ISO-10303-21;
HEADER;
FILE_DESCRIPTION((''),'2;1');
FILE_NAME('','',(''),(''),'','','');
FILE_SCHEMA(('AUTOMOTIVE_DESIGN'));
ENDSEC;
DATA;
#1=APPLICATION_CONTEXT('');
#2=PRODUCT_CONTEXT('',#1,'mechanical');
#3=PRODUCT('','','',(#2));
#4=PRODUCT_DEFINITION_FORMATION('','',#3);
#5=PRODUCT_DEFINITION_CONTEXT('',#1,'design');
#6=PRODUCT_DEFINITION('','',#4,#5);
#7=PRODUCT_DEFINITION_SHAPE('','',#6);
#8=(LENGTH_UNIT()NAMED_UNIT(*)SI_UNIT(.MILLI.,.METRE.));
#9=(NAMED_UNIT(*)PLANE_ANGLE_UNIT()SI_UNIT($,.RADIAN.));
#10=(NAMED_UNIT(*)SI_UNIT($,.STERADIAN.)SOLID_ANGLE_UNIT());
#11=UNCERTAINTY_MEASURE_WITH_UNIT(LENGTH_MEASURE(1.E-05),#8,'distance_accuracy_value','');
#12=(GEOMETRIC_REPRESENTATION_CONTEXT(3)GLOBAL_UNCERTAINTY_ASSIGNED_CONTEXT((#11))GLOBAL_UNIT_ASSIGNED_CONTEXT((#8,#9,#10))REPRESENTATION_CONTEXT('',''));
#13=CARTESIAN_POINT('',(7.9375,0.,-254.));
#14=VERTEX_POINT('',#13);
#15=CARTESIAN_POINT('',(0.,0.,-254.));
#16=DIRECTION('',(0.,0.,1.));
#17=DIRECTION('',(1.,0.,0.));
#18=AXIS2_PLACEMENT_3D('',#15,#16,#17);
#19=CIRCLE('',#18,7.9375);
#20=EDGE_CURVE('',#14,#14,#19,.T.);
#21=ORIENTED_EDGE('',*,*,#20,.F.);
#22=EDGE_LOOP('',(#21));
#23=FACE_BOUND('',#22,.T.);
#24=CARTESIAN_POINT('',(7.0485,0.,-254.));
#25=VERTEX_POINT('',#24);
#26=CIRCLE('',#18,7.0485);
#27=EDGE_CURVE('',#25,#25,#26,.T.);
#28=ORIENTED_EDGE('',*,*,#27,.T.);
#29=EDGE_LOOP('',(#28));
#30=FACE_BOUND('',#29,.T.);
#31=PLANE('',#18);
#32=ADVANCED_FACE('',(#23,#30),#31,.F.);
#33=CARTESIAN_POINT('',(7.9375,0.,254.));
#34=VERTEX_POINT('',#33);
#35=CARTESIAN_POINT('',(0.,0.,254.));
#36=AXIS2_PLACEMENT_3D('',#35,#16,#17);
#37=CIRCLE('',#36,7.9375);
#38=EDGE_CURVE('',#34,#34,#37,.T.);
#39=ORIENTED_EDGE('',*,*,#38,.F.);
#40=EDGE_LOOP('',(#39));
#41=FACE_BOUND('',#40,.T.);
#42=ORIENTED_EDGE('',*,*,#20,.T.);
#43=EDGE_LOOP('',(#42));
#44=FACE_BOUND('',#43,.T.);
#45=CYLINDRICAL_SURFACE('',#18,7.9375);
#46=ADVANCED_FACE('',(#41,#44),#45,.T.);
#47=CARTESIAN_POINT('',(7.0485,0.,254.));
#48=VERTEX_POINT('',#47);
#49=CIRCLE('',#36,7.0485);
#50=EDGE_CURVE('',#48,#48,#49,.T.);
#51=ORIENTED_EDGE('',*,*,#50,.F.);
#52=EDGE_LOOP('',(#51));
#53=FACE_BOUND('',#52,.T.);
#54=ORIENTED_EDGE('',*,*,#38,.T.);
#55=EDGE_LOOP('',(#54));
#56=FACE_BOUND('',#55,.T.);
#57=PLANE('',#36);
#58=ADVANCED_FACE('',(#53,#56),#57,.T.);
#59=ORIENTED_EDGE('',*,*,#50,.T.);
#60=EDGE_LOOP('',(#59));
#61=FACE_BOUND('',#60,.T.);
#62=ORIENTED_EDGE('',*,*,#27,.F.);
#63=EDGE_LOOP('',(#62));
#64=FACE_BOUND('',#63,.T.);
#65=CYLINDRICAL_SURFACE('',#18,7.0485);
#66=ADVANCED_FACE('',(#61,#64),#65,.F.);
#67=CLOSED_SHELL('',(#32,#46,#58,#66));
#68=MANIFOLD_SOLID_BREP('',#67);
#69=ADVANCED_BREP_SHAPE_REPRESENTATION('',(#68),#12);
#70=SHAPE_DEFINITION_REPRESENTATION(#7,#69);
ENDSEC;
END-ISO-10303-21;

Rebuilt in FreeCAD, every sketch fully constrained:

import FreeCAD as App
import Part
import Sketcher

V = App.Vector
Q = App.Units.Quantity

doc = App.newDocument("Part")
body = doc.addObject("PartDesign::Body", "Body")

# Sketch on XY plane
sketch1 = body.newObject("Sketcher::SketchObject", "Sketch")
sketch1.AttachmentSupport = (doc.getObject("XY_Plane"), [""])
sketch1.MapMode = "FlatFace"
sketch1.addGeometry(Part.Circle(V(0, 0, 0), V(0, 0, 1), 8), False)
sketch1.addGeometry(Part.Circle(V(0, 0, 0), V(0, 0, 1), 7), False)
sketch1.addConstraint(Sketcher.Constraint("Coincident", 0, 3, -1, 1))
sketch1.addConstraint(Sketcher.Constraint("Coincident", 1, 3, -1, 1))
sketch1.addConstraint(Sketcher.Constraint("Diameter", 0, Q("0.625 in")))
sketch1.addConstraint(Sketcher.Constraint("Diameter", 1, Q("0.555 in")))
pad1 = body.newObject("PartDesign::Pad", "Pad")
pad1.Profile = sketch1
pad1.Type = "TwoLengths"
pad1.Length = Q("10 in")
pad1.Length2 = Q("10 in")

doc.recompute()
